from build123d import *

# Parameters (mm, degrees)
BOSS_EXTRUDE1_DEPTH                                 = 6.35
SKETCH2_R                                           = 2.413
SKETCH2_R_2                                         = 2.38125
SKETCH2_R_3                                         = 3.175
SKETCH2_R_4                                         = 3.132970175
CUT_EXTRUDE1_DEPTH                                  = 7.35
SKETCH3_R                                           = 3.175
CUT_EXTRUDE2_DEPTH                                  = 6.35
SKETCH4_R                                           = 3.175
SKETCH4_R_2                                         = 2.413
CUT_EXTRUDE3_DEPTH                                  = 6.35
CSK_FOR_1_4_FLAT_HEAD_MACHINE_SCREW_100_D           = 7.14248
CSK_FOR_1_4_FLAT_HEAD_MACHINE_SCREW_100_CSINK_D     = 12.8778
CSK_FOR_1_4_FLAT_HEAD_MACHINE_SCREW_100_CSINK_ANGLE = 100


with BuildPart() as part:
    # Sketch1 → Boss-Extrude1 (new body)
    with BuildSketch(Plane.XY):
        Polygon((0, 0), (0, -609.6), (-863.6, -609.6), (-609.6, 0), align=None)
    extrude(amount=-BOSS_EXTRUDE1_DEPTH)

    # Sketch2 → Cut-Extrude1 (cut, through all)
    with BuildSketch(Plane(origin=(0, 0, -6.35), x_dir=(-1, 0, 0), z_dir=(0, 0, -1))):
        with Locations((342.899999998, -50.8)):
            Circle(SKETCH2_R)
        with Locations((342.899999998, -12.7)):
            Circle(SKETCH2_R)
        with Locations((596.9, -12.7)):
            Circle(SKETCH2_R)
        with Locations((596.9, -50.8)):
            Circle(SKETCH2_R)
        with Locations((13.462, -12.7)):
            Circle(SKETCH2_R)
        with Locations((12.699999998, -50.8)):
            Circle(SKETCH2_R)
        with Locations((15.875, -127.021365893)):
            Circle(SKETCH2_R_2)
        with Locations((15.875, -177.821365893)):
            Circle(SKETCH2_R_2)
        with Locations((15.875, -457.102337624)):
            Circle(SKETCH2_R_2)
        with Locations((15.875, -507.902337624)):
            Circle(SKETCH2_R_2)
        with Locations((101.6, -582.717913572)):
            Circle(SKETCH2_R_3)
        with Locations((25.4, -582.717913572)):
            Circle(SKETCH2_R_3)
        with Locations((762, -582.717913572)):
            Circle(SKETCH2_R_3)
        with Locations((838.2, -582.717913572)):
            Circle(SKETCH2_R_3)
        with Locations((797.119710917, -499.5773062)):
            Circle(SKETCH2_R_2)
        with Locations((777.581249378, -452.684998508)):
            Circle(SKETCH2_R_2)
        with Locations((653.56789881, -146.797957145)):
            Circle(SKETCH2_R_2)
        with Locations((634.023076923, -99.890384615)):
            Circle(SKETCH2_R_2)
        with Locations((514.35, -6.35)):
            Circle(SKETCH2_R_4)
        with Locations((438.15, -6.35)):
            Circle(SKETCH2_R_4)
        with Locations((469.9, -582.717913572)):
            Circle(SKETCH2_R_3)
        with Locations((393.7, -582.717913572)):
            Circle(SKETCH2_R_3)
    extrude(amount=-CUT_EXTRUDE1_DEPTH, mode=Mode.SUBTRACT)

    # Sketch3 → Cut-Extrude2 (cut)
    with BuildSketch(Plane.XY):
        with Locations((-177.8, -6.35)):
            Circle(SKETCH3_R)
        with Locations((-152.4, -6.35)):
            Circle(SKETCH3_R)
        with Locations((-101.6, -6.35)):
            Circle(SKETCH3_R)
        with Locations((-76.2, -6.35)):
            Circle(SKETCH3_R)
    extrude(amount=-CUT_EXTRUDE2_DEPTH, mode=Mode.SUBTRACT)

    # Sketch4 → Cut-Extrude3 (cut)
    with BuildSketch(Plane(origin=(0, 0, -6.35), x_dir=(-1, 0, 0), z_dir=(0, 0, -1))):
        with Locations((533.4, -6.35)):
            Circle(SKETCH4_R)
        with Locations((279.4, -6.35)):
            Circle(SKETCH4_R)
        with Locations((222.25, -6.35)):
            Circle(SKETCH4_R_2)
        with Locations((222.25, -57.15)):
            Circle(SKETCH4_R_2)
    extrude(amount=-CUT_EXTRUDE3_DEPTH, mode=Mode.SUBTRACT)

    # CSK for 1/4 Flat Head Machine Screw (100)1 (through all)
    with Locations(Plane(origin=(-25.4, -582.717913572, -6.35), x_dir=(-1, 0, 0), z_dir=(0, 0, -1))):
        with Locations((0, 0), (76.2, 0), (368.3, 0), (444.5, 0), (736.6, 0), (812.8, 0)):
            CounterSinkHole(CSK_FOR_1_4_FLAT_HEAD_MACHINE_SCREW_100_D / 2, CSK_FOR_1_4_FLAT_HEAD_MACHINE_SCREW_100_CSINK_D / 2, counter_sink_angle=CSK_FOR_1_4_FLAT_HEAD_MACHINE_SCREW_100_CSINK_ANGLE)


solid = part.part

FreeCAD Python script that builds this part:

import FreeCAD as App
import Part
import Sketcher
from FreeCAD import Vector
Q = App.Units.Quantity

doc = App.newDocument("Part")
params = doc.addObject("Spreadsheet::Sheet", "Params")
for row, (alias, value) in enumerate([
    ("sketch1_width", "24 in"),
    ("sketch1_width2", "34 in"),
    ("pad1_length", "0.25 in"),
    ("sketch2_diameter", "0.19 in"),
    ("sketch2_diameter2", "0.25 in"),
    ("sketch2_diameter3", "0.1875 in"),
    ("sketch3_diameter", "0.25 in"),
    ("pocket2_length", "0.25 in"),
    ("sketch4_diameter", "0.25 in"),
    ("sketch4_diameter2", "0.19 in"),
    ("pocket3_length", "0.25 in"),
    ("hole_diameter", "0.2812 in"),
    ("hole_csink_diameter", "0.507 in"),
], start=1):
    params.set(f"A{row}", alias)
    params.set(f"B{row}", "=" + value)
    params.setAlias(f"B{row}", alias)

body = doc.addObject("PartDesign::Body", "Body")

# Sketch on XY plane
sketch1 = body.newObject("Sketcher::SketchObject", "Sketch")
sketch1.AttachmentSupport = (doc.getObject("XY_Plane"), [""])
sketch1.MapMode = "FlatFace"
sketch1.addGeometry(Part.LineSegment(Vector(0, -609.6, 0), Vector(0, 0, 0)), False)
sketch1.addGeometry(Part.LineSegment(Vector(0, 0, 0), Vector(-609.6, 0, 0)), False)
sketch1.addGeometry(Part.LineSegment(Vector(-609.6, 0, 0), Vector(-863.6, -609.6, 0)), False)
sketch1.addGeometry(Part.LineSegment(Vector(-863.6, -609.6, 0), Vector(0, -609.6, 0)), False)
sketch1.addConstraint(Sketcher.Constraint("Coincident", 0, 2, 1, 1))
sketch1.addConstraint(Sketcher.Constraint("Coincident", 1, 2, 2, 1))
sketch1.addConstraint(Sketcher.Constraint("Coincident", 2, 2, 3, 1))
sketch1.addConstraint(Sketcher.Constraint("Coincident", 3, 2, 0, 1))
sketch1.addConstraint(Sketcher.Constraint("Vertical", 0))
sketch1.addConstraint(Sketcher.Constraint("Horizontal", 1))
sketch1.addConstraint(Sketcher.Constraint("Horizontal", 3))
sketch1.addConstraint(Sketcher.Constraint("Coincident", 0, 2, -1, 1))
sketch1.addConstraint(Sketcher.Constraint("Equal", 1, 0))
sketch1.addConstraint(Sketcher.Constraint("DistanceX", 1, 2, 1, 1, Q("24 in")))
sketch1.addConstraint(Sketcher.Constraint("DistanceX", 3, 1, 3, 2, Q("34 in")))
sketch1.setExpression("Constraints[9]", "Params.sketch1_width")
sketch1.setExpression("Constraints[10]", "Params.sketch1_width2")
pad1 = body.newObject("PartDesign::Pad", "Pad")
pad1.Profile = sketch1
pad1.setExpression("Length", "Params.pad1_length")
pad1.Reversed = True

# Sketch on XY plane
sketch2 = body.newObject("Sketcher::SketchObject", "Sketch001")
sketch2.AttachmentSupport = (doc.getObject("XY_Plane"), [""])
sketch2.MapMode = "FlatFace"
sketch2.AttachmentOffset = App.Placement(Vector(0, 0, -0.25 * 25.4), App.Rotation())
sketch2.addGeometry(Part.Circle(Vector(-342.9, -50.8, 0), Vector(0, 0, 1), 2.413), False)
sketch2.addGeometry(Part.Circle(Vector(-342.9, -12.7, 0), Vector(0, 0, 1), 2.413), False)
sketch2.addGeometry(Part.Circle(Vector(-596.9, -12.7, 0), Vector(0, 0, 1), 2.413), False)
sketch2.addGeometry(Part.Circle(Vector(-596.9, -50.8, 0), Vector(0, 0, 1), 2.413), False)
sketch2.addGeometry(Part.Circle(Vector(-13.462, -12.7, 0), Vector(0, 0, 1), 2.413), False)
sketch2.addGeometry(Part.Circle(Vector(-12.7, -50.8, 0), Vector(0, 0, 1), 2.413), False)
sketch2.addGeometry(Part.Circle(Vector(-15.875, -127.021366, 0), Vector(0, 0, 1), 2.38125), False)
sketch2.addGeometry(Part.Circle(Vector(-15.875, -177.821366, 0), Vector(0, 0, 1), 2.38125), False)
sketch2.addGeometry(Part.Circle(Vector(-15.875, -457.102338, 0), Vector(0, 0, 1), 2.38125), False)
sketch2.addGeometry(Part.Circle(Vector(-15.875, -507.902338, 0), Vector(0, 0, 1), 2.38125), False)
sketch2.addGeometry(Part.Circle(Vector(-101.6, -582.717914, 0), Vector(0, 0, 1), 3.175), False)
sketch2.addGeometry(Part.Circle(Vector(-25.4, -582.717914, 0), Vector(0, 0, 1), 3.175), False)
sketch2.addGeometry(Part.Circle(Vector(-762, -582.717914, 0), Vector(0, 0, 1), 3.175), False)
sketch2.addGeometry(Part.Circle(Vector(-838.2, -582.717914, 0), Vector(0, 0, 1), 3.175), False)
sketch2.addGeometry(Part.Circle(Vector(-797.119711, -499.577306, 0), Vector(0, 0, 1), 2.38125), False)
sketch2.addGeometry(Part.Circle(Vector(-777.581249, -452.684999, 0), Vector(0, 0, 1), 2.38125), False)
sketch2.addGeometry(Part.Circle(Vector(-653.567899, -146.797957, 0), Vector(0, 0, 1), 2.38125), False)
sketch2.addGeometry(Part.Circle(Vector(-634.023077, -99.890385, 0), Vector(0, 0, 1), 2.38125), False)
sketch2.addGeometry(Part.Circle(Vector(-514.35, -6.35, 0), Vector(0, 0, 1), 3.13297), False)
sketch2.addGeometry(Part.Circle(Vector(-438.15, -6.35, 0), Vector(0, 0, 1), 3.13297), False)
sketch2.addGeometry(Part.Circle(Vector(-469.9, -582.717914, 0), Vector(0, 0, 1), 3.175), False)
sketch2.addGeometry(Part.Circle(Vector(-393.7, -582.717914, 0), Vector(0, 0, 1), 3.175), False)
sketch2.addConstraint(Sketcher.Constraint("Equal", 0, 1))
sketch2.addConstraint(Sketcher.Constraint("Equal", 1, 2))
sketch2.addConstraint(Sketcher.Constraint("Equal", 2, 3))
sketch2.addConstraint(Sketcher.Constraint("Equal", 3, 4))
sketch2.addConstraint(Sketcher.Constraint("Equal", 4, 5))
sketch2.addConstraint(Sketcher.Constraint("Equal", 6, 7))
sketch2.addConstraint(Sketcher.Constraint("Equal", 7, 8))
sketch2.addConstraint(Sketcher.Constraint("Equal", 8, 9))
sketch2.addConstraint(Sketcher.Constraint("Equal", 10, 11))
sketch2.addConstraint(Sketcher.Constraint("Equal", 11, 12))
sketch2.addConstraint(Sketcher.Constraint("Equal", 12, 13))
sketch2.addConstraint(Sketcher.Constraint("Equal", 9, 14))
sketch2.addConstraint(Sketcher.Constraint("Equal", 14, 15))
sketch2.addConstraint(Sketcher.Constraint("Equal", 15, 16))
sketch2.addConstraint(Sketcher.Constraint("Equal", 16, 17))
sketch2.addConstraint(Sketcher.Constraint("Equal", 18, 19))
sketch2.addConstraint(Sketcher.Constraint("Equal", 13, 20))
sketch2.addConstraint(Sketcher.Constraint("Equal", 20, 21))
sketch2.addConstraint(Sketcher.Constraint("Horizontal", 1, 3, 2, 3))
sketch2.addConstraint(Sketcher.Constraint("Horizontal", 0, 3, 3, 3))
sketch2.addConstraint(Sketcher.Constraint("Horizontal", 2, 3, 4, 3))
sketch2.addConstraint(Sketcher.Constraint("Horizontal", 3, 3, 5, 3))
sketch2.addConstraint(Sketcher.Constraint("Horizontal", 10, 3, 11, 3))
sketch2.addConstraint(Sketcher.Constraint("Horizontal", 11, 3, 12, 3))
sketch2.addConstraint(Sketcher.Constraint("Horizontal", 12, 3, 13, 3))
sketch2.addConstraint(Sketcher.Constraint("Horizontal", 18, 3, 19, 3))
sketch2.addConstraint(Sketcher.Constraint("Horizontal", 13, 3, 20, 3))
sketch2.addConstraint(Sketcher.Constraint("Horizontal", 20, 3, 21, 3))
sketch2.addConstraint(Sketcher.Constraint("Vertical", 0, 3, 1, 3))
sketch2.addConstraint(Sketcher.Constraint("Vertical", 2, 3, 3, 3))
sketch2.addConstraint(Sketcher.Constraint("Vertical", 6, 3, 7, 3))
sketch2.addConstraint(Sketcher.Constraint("Vertical", 7, 3, 8, 3))
sketch2.addConstraint(Sketcher.Constraint("Vertical", 8, 3, 9, 3))
sketch2.addConstraint(Sketcher.Constraint("Diameter", 0, Q("0.19 in")))
sketch2.addConstraint(Sketcher.Constraint("Diameter", 10, Q("0.25 in")))
sketch2.addConstraint(Sketcher.Constraint("Diameter", 6, Q("0.1875 in")))
sketch2.addConstraint(Sketcher.Constraint("DistanceY", 0, 3, -1, 1, Q("2 in")))
sketch2.addConstraint(Sketcher.Constraint("DistanceX", 10, 3, -1, 1, Q("4 in")))
sketch2.addConstraint(Sketcher.Constraint("DistanceX", 11, 3, -1, 1, Q("1 in")))
sketch2.addConstraint(Sketcher.Constraint("DistanceX", 12, 3, -1, 1, Q("30 in")))
sketch2.addConstraint(Sketcher.Constraint("DistanceX", 13, 3, -1, 1, Q("33 in")))
sketch2.addConstraint(Sketcher.Constraint("DistanceX", 2, 3, 1, 3, Q("10 in")))
sketch2.addConstraint(Sketcher.Constraint("DistanceX", 0, 3, 5, 3, Q("13 in")))
sketch2.addConstraint(Sketcher.Constraint("DistanceY", 7, 3, 6, 3, Q("2 in")))
sketch2.addConstraint(Sketcher.Constraint("DistanceY", 9, 3, 8, 3, Q("2 in")))
sketch2.addConstraint(Sketcher.Constraint("DistanceX", 18, 3, 19, 3, Q("3 in")))
sketch2.addConstraint(Sketcher.Constraint("DistanceX", 20, 3, 21, 3, Q("3 in")))
sketch2.addConstraint(Sketcher.Constraint("DistanceX", 0, 3, -1, 1, Q("13.5 in")))
sketch2.addConstraint(Sketcher.Constraint("DistanceY", 1, 3, -1, 1, Q("0.5 in")))
sketch2.addConstraint(Sketcher.Constraint("DistanceX", 20, 3, -1, 1, Q("18.5 in")))
sketch2.addConstraint(Sketcher.Constraint("DistanceX", 4, 3, -1, 1, Q("0.53 in")))
sketch2.addConstraint(Sketcher.Constraint("DistanceX", 18, 3, -1, 1, Q("20.25 in")))
sketch2.addConstraint(Sketcher.Constraint("DistanceY", 18, 3, -1, 1, Q("0.25 in")))
sketch2.addConstraint(Sketcher.Constraint("Diameter", 18, Q("6.26594 mm")))
sketch2.addConstraint(Sketcher.Constraint("DistanceX", 6, 3, -1, 1, Q("0.625 in")))
sketch2.addConstraint(Sketcher.Constraint("DistanceY", 15, 3, -1, 1, Q("452.684999 mm")))
sketch2.addConstraint(Sketcher.Constraint("DistanceX", 16, 3, -1, 1, Q("653.567899 mm")))
sketch2.addConstraint(Sketcher.Constraint("DistanceX", 14, 3, -1, 1, Q("797.119711 mm")))
sketch2.addConstraint(Sketcher.Constraint("DistanceX", 15, 3, -1, 1, Q("777.581249 mm")))
sketch2.addConstraint(Sketcher.Constraint("DistanceY", 8, 3, 7, 3, Q("279.280972 mm")))
sketch2.addConstraint(Sketcher.Constraint("DistanceY", 15, 3, 16, 3, Q("305.887041 mm")))
sketch2.addConstraint(Sketcher.Constraint("DistanceX", 16, 3, 17, 3, Q("19.544822 mm")))
sketch2.addConstraint(Sketcher.Constraint("DistanceY", 6, 3, -1, 1, Q("127.021366 mm")))
sketch2.addConstraint(Sketcher.Constraint("DistanceY", 10, 3, -1, 1, Q("582.717914 mm")))
sketch2.addConstraint(Sketcher.Constraint("DistanceY", 14, 3, -1, 1, Q("499.577306 mm")))
sketch2.addConstraint(Sketcher.Constraint("DistanceY", 17, 3, -1, 1, Q("99.890385 mm")))
sketch2.setExpression("Constraints[33]", "Params.sketch2_diameter")
sketch2.setExpression("Constraints[34]", "Params.sketch2_diameter2")
sketch2.setExpression("Constraints[35]", "Params.sketch2_diameter3")
pocket1 = body.newObject("PartDesign::Pocket", "Pocket")
pocket1.Profile = sketch2
pocket1.Type = "ThroughAll"
pocket1.Reversed = True

# Sketch on XY plane
sketch3 = body.newObject("Sketcher::SketchObject", "Sketch002")
sketch3.AttachmentSupport = (doc.getObject("XY_Plane"), [""])
sketch3.MapMode = "FlatFace"
sketch3.addGeometry(Part.Circle(Vector(-177.8, -6.35, 0), Vector(0, 0, 1), 3.175), False)
sketch3.addGeometry(Part.Circle(Vector(-152.4, -6.35, 0), Vector(0, 0, 1), 3.175), False)
sketch3.addGeometry(Part.Circle(Vector(-101.6, -6.35, 0), Vector(0, 0, 1), 3.175), False)
sketch3.addGeometry(Part.Circle(Vector(-76.2, -6.35, 0), Vector(0, 0, 1), 3.175), False)
sketch3.addConstraint(Sketcher.Constraint("Equal", 0, 1))
sketch3.addConstraint(Sketcher.Constraint("Equal", 1, 2))
sketch3.addConstraint(Sketcher.Constraint("Equal", 2, 3))
sketch3.addConstraint(Sketcher.Constraint("Horizontal", 0, 3, 1, 3))
sketch3.addConstraint(Sketcher.Constraint("Horizontal", 1, 3, 2, 3))
sketch3.addConstraint(Sketcher.Constraint("Horizontal", 2, 3, 3, 3))
sketch3.addConstraint(Sketcher.Constraint("Diameter", 0, Q("0.25 in")))
sketch3.addConstraint(Sketcher.Constraint("DistanceX", 0, 3, -1, 1, Q("7 in")))
sketch3.addConstraint(Sketcher.Constraint("DistanceX", 1, 3, -1, 1, Q("6 in")))
sketch3.addConstraint(Sketcher.Constraint("DistanceX", 2, 3, -1, 1, Q("4 in")))
sketch3.addConstraint(Sketcher.Constraint("DistanceX", 3, 3, -1, 1, Q("3 in")))
sketch3.addConstraint(Sketcher.Constraint("DistanceY", 0, 3, -1, 1, Q("0.25 in")))
sketch3.setExpression("Constraints[6]", "Params.sketch3_diameter")
pocket2 = body.newObject("PartDesign::Pocket", "Pocket001")
pocket2.Profile = sketch3
pocket2.setExpression("Length", "Params.pocket2_length")

# Sketch on XY plane
sketch4 = body.newObject("Sketcher::SketchObject", "Sketch003")
sketch4.AttachmentSupport = (doc.getObject("XY_Plane"), [""])
sketch4.MapMode = "FlatFace"
sketch4.AttachmentOffset = App.Placement(Vector(0, 0, -0.25 * 25.4), App.Rotation())
sketch4.addGeometry(Part.Circle(Vector(-533.4, -6.35, 0), Vector(0, 0, 1), 3.175), False)
sketch4.addGeometry(Part.Circle(Vector(-279.4, -6.35, 0), Vector(0, 0, 1), 3.175), False)
sketch4.addGeometry(Part.Circle(Vector(-222.25, -6.35, 0), Vector(0, 0, 1), 2.413), False)
sketch4.addGeometry(Part.Circle(Vector(-222.25, -57.15, 0), Vector(0, 0, 1), 2.413), False)
sketch4.addConstraint(Sketcher.Constraint("Equal", 0, 1))
sketch4.addConstraint(Sketcher.Constraint("Equal", 2, 3))
sketch4.addConstraint(Sketcher.Constraint("Horizontal", 0, 3, 1, 3))
sketch4.addConstraint(Sketcher.Constraint("Horizontal", 1, 3, 2, 3))
sketch4.addConstraint(Sketcher.Constraint("Vertical", 2, 3, 3, 3))
sketch4.addConstraint(Sketcher.Constraint("Diameter", 0, Q("0.25 in")))
sketch4.addConstraint(Sketcher.Constraint("Diameter", 2, Q("0.19 in")))
sketch4.addConstraint(Sketcher.Constraint("DistanceX", 0, 3, -1, 1, Q("21 in")))
sketch4.addConstraint(Sketcher.Constraint("DistanceX", 1, 3, -1, 1, Q("11 in")))
sketch4.addConstraint(Sketcher.Constraint("DistanceY", 3, 3, 2, 3, Q("2 in")))
sketch4.addConstraint(Sketcher.Constraint("DistanceY", 0, 3, -1, 1, Q("0.25 in")))
sketch4.addConstraint(Sketcher.Constraint("DistanceX", 2, 3, -1, 1, Q("8.75 in")))
sketch4.setExpression("Constraints[5]", "Params.sketch4_diameter")
sketch4.setExpression("Constraints[6]", "Params.sketch4_diameter2")
pocket3 = body.newObject("PartDesign::Pocket", "Pocket002")
pocket3.Profile = sketch4
pocket3.setExpression("Length", "Params.pocket3_length")
pocket3.Reversed = True

# Sketch on XY plane
sketch5 = body.newObject("Sketcher::SketchObject", "Sketch004")
sketch5.AttachmentSupport = (doc.getObject("XY_Plane"), [""])
sketch5.MapMode = "FlatFace"
sketch5.AttachmentOffset = App.Placement(Vector(0, 0, -0.25 * 25.4), App.Rotation())
sketch5.addGeometry(Part.Circle(Vector(-25.4, -582.717914, 0), Vector(0, 0, 1), 3.57124), False)
sketch5.addGeometry(Part.Circle(Vector(-101.6, -582.717914, 0), Vector(0, 0, 1), 3.57124), False)
sketch5.addGeometry(Part.Circle(Vector(-393.7, -582.717914, 0), Vector(0, 0, 1), 3.57124), False)
sketch5.addGeometry(Part.Circle(Vector(-469.9, -582.717914, 0), Vector(0, 0, 1), 3.57124), False)
sketch5.addGeometry(Part.Circle(Vector(-762, -582.717914, 0), Vector(0, 0, 1), 3.57124), False)
sketch5.addGeometry(Part.Circle(Vector(-838.2, -582.717914, 0), Vector(0, 0, 1), 3.57124), False)
sketch5.addConstraint(Sketcher.Constraint("Equal", 0, 1))
sketch5.addConstraint(Sketcher.Constraint("Equal", 1, 2))
sketch5.addConstraint(Sketcher.Constraint("Equal", 2, 3))
sketch5.addConstraint(Sketcher.Constraint("Equal", 3, 4))
sketch5.addConstraint(Sketcher.Constraint("Equal", 4, 5))
sketch5.addConstraint(Sketcher.Constraint("Horizontal", 0, 3, 1, 3))
sketch5.addConstraint(Sketcher.Constraint("Horizontal", 1, 3, 2, 3))
sketch5.addConstraint(Sketcher.Constraint("Horizontal", 2, 3, 3, 3))
sketch5.addConstraint(Sketcher.Constraint("Horizontal", 3, 3, 4, 3))
sketch5.addConstraint(Sketcher.Constraint("Horizontal", 4, 3, 5, 3))
sketch5.addConstraint(Sketcher.Constraint("DistanceX", 0, 3, -1, 1, Q("1 in")))
sketch5.addConstraint(Sketcher.Constraint("DistanceX", 1, 3, -1, 1, Q("4 in")))
sketch5.addConstraint(Sketcher.Constraint("DistanceX", 4, 3, -1, 1, Q("30 in")))
sketch5.addConstraint(Sketcher.Constraint("DistanceX", 5, 3, -1, 1, Q("33 in")))
sketch5.addConstraint(Sketcher.Constraint("DistanceX", 3, 3, 2, 3, Q("3 in")))
sketch5.addConstraint(Sketcher.Constraint("Diameter", 0, Q("0.2812 in")))
sketch5.addConstraint(Sketcher.Constraint("DistanceX", 2, 3, -1, 1, Q("15.5 in")))
sketch5.addConstraint(Sketcher.Constraint("DistanceY", 0, 3, -1, 1, Q("582.717914 mm")))
doc.recompute()
hole = body.newObject("PartDesign::Hole", "Hole")
hole.Profile = sketch5
hole.ThreadType = "None"
hole.setExpression("Diameter", "Params.hole_diameter")
hole.DepthType = "ThroughAll"
hole.HoleCutType = "Countersink"
hole.setExpression("HoleCutDiameter", "Params.hole_csink_diameter")
hole.HoleCutCountersinkAngle = 100
hole.Reversed = True

doc.recompute()
